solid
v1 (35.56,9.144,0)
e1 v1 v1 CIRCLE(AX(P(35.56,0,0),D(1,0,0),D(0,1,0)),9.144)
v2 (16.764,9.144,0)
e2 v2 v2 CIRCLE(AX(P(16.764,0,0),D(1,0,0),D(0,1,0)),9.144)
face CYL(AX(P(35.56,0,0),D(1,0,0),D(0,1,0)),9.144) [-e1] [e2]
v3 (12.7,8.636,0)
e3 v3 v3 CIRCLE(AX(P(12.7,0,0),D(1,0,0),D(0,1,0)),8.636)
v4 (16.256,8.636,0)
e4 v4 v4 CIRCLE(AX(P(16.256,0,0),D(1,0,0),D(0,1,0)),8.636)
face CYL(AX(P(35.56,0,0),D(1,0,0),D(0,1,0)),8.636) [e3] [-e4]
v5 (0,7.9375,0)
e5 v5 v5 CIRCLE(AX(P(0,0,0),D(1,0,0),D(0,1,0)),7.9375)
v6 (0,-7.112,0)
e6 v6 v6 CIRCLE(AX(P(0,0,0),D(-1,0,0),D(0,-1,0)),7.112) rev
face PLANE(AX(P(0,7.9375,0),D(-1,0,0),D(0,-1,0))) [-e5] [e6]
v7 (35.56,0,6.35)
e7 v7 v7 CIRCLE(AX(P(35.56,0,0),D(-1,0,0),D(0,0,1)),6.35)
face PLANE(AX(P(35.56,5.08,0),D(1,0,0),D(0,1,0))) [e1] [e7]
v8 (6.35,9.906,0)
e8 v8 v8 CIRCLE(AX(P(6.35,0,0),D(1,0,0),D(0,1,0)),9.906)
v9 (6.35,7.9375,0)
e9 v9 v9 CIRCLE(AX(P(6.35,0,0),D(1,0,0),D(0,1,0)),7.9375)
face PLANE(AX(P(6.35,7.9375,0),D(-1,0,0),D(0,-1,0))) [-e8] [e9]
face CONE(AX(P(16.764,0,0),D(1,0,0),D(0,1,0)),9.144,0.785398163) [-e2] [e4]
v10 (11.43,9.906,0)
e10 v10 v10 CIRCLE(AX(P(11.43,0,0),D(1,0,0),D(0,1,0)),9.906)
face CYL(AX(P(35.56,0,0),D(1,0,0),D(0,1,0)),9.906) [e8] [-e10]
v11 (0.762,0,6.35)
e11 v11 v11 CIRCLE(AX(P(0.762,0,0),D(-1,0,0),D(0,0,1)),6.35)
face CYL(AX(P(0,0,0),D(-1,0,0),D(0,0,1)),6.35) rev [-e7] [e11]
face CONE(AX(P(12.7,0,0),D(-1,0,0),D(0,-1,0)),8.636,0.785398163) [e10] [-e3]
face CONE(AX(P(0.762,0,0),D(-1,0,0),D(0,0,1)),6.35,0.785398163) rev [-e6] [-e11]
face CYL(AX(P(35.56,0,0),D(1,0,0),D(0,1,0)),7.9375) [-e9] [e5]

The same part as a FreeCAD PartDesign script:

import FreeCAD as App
import Part
import Sketcher

V = App.Vector
Q = App.Units.Quantity


def edges_at(feature, points):
    """Names of the edges that pass closest to the given points."""
    edges = feature.Shape.Edges
    near = lambda p: min(range(len(edges)), key=lambda i: edges[i].distToShape(Part.Vertex(*p))[0])
    return sorted({f"Edge{near(p) + 1}" for p in points})

doc = App.newDocument("Part")
body = doc.addObject("PartDesign::Body", "Body")

sketch1 = body.newObject("Sketcher::SketchObject", "Sketch")
sketch1.AttachmentSupport = (doc.getObject("XY_Plane"), [""])
sketch1.MapMode = "FlatFace"
sketch1.addGeometry(Part.LineSegment(V(6.3, 9.9, 0), V(6.3, 7.9, 0)), False)
sketch1.addGeometry(Part.LineSegment(V(6.3, 7.9, 0), V(0, 7.9, 0)), False)
sketch1.addGeometry(Part.LineSegment(V(0, 7.9, 0), V(0, 0, 0)), False)
sketch1.addGeometry(Part.LineSegment(V(0, 0, 0), V(35.6, 0, 0)), False)
sketch1.addGeometry(Part.LineSegment(V(35.6, 0, 0), V(35.6, 9.1, 0)), False)
sketch1.addGeometry(Part.LineSegment(V(35.6, 9.1, 0), V(16.8, 9.1, 0)), False)
sketch1.addGeometry(Part.LineSegment(V(16.8, 9.1, 0), V(16.3, 8.6, 0)), False)
sketch1.addGeometry(Part.LineSegment(V(16.3, 8.6, 0), V(12.7, 8.6, 0)), False)
sketch1.addGeometry(Part.LineSegment(V(12.7, 8.6, 0), V(11.4, 9.9, 0)), False)
sketch1.addGeometry(Part.LineSegment(V(11.4, 9.9, 0), V(6.3, 9.9, 0)), False)
sketch1.addConstraint(Sketcher.Constraint("Coincident", 0, 2, 1, 1))
sketch1.addConstraint(Sketcher.Constraint("Coincident", 1, 2, 2, 1))
sketch1.addConstraint(Sketcher.Constraint("Coincident", 2, 2, 3, 1))
sketch1.addConstraint(Sketcher.Constraint("Coincident", 3, 2, 4, 1))
sketch1.addConstraint(Sketcher.Constraint("Coincident", 4, 2, 5, 1))
sketch1.addConstraint(Sketcher.Constraint("Coincident", 5, 2, 6, 1))
sketch1.addConstraint(Sketcher.Constraint("Coincident", 6, 2, 7, 1))
sketch1.addConstraint(Sketcher.Constraint("Coincident", 7, 2, 8, 1))
sketch1.addConstraint(Sketcher.Constraint("Coincident", 8, 2, 9, 1))
sketch1.addConstraint(Sketcher.Constraint("Coincident", 9, 2, 0, 1))
sketch1.addConstraint(Sketcher.Constraint("Vertical", 0))
sketch1.addConstraint(Sketcher.Constraint("Horizontal", 1))
sketch1.addConstraint(Sketcher.Constraint("Vertical", 2))
sketch1.addConstraint(Sketcher.Constraint("Horizontal", 3))
sketch1.addConstraint(Sketcher.Constraint("Vertical", 4))
sketch1.addConstraint(Sketcher.Constraint("Horizontal", 5))
sketch1.addConstraint(Sketcher.Constraint("Horizontal", 7))
sketch1.addConstraint(Sketcher.Constraint("Horizontal", 9))
sketch1.addConstraint(Sketcher.Constraint("Coincident", 2, 2, -1, 1))
sketch1.addConstraint(Sketcher.Constraint("Perpendicular", 6, 8))
sketch1.addConstraint(Sketcher.Constraint("DistanceX", 3, 1, 3, 2, Q("1.4 in")))
sketch1.addConstraint(Sketcher.Constraint("DistanceX", 9, 2, 9, 1, Q("0.2 in")))
sketch1.addConstraint(Sketcher.Constraint("Angle", 6, Q("-135 deg")))
sketch1.addConstraint(Sketcher.Constraint("DistanceX", 1, 2, 1, 1, Q("0.25 in")))
sketch1.addConstraint(Sketcher.Constraint("DistanceX", 5, 2, 5, 1, Q("0.74 in")))
sketch1.addConstraint(Sketcher.Constraint("DistanceX", 7, 2, 7, 1, Q("0.14 in")))
sketch1.addConstraint(Sketcher.Constraint("DistanceY", 4, 1, 4, 2, Q("0.36 in")))
sketch1.addConstraint(Sketcher.Constraint("DistanceX", -1, 1, 7, 2, Q("0.5 in")))
sketch1.addConstraint(Sketcher.Constraint("DistanceY", 2, 2, 2, 1, Q("0.3125 in")))
revolution = body.newObject("PartDesign::Revolution", "Revolution")
revolution.Profile = sketch1
revolution.ReferenceAxis = (sketch1, ["H_Axis"])
revolution.Angle = 360

sketch2 = body.newObject("Sketcher::SketchObject", "Sketch001")
sketch2.AttachmentSupport = (doc.getObject("YZ_Plane"), [""])
sketch2.MapMode = "FlatFace"
sketch2.addGeometry(Part.Circle(V(0, 0, 0), V(0, 0, 1), 6), False)
sketch2.addConstraint(Sketcher.Constraint("Coincident", 0, 3, -1, 1))
sketch2.addConstraint(Sketcher.Constraint("Diameter", 0, Q("0.5 in")))
doc.recompute()
hole = body.newObject("PartDesign::Hole", "Hole")
hole.Profile = sketch2
hole.ThreadType = "None"
hole.Diameter = Q("0.5 in")
hole.DepthType = "ThroughAll"
hole.Reversed = True
doc.recompute()

chamfer = body.newObject("PartDesign::Chamfer", "Chamfer")
chamfer.Base = (hole, edges_at(hole, [(0, 0, 6.35)]))
chamfer.Size = Q("0.03 in")

doc.recompute()
